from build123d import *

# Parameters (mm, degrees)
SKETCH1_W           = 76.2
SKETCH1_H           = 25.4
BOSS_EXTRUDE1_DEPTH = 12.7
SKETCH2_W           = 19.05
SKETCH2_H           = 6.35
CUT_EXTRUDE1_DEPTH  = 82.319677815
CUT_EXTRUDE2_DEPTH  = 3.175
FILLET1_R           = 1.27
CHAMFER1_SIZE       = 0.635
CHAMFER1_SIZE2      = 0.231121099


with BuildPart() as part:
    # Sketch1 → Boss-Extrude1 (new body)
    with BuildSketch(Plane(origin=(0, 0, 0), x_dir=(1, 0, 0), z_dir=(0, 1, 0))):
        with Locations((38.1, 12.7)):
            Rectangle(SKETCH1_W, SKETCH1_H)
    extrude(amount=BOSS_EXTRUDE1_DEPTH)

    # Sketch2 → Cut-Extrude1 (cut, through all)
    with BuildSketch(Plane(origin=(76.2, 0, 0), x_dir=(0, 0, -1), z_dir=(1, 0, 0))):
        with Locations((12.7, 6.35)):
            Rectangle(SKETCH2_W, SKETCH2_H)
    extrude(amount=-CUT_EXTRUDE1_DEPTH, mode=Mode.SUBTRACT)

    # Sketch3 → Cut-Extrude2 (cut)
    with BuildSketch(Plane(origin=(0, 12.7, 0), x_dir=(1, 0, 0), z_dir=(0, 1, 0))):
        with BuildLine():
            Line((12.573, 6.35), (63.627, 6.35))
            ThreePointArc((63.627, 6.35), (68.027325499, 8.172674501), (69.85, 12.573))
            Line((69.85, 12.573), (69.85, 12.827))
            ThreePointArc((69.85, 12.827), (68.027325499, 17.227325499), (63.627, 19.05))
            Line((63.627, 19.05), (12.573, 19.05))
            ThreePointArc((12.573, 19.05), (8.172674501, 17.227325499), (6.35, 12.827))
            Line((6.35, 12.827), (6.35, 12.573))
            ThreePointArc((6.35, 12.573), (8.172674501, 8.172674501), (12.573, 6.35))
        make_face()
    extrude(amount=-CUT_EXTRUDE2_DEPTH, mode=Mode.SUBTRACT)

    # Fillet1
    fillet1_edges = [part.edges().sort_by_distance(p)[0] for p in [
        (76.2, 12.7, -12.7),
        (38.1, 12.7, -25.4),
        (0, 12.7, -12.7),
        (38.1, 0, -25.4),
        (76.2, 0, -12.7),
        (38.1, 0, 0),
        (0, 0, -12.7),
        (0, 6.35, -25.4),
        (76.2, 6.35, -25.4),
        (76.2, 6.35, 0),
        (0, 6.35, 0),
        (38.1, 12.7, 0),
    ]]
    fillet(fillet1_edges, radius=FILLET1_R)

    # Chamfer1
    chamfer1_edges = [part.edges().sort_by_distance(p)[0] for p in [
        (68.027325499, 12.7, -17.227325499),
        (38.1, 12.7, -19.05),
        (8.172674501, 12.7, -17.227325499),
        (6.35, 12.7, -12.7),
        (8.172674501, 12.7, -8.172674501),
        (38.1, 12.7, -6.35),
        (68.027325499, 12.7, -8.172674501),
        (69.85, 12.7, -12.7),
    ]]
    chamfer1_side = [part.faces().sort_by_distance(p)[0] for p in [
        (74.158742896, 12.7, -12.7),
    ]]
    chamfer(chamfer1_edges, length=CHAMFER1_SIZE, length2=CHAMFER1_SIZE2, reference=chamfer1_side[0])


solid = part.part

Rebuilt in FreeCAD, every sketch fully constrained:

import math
import FreeCAD as App
import Part
import Sketcher
from FreeCAD import Vector
Q = App.Units.Quantity


def edges_at(feature, points):
    """Names of the edges that pass closest to the given points."""
    edges = feature.Shape.Edges
    near = lambda p: min(range(len(edges)), key=lambda i: edges[i].distToShape(Part.Vertex(*p))[0])
    return sorted({f"Edge{near(p) + 1}" for p in points})


def add_polygon(sketch, points):
    """Adds a closed chain of lines whose ends are joined by coincident constraints."""
    first, n = sketch.GeometryCount, len(points)
    for a, b in zip(points, points[1:] + points[:1]):
        sketch.addGeometry(Part.LineSegment(App.Vector(*a, 0), App.Vector(*b, 0)), False)
    for i in range(n):
        sketch.addConstraint(Sketcher.Constraint("Coincident", first + i, 2, first + (i + 1) % n, 1))

doc = App.newDocument("Part")
body = doc.addObject("PartDesign::Body", "Body")

sketch1 = body.newObject("Sketcher::SketchObject", "Sketch")
sketch1.AttachmentSupport = (doc.getObject("XZ_Plane"), [""])
sketch1.MapMode = "FlatFace"
add_polygon(sketch1, [(0, -25), (0, 0), (76, 0), (76, -25)])
sketch1.addConstraint([
    Sketcher.Constraint("Vertical", 0),
    Sketcher.Constraint("Horizontal", 1),
    Sketcher.Constraint("Vertical", 2),
    Sketcher.Constraint("Horizontal", 3),
    Sketcher.Constraint("Coincident", 0, 2, -1, 1),
    Sketcher.Constraint("DistanceX", 1, 1, 1, 2, Q("3 in")),
    Sketcher.Constraint("DistanceY", 0, 1, 0, 2, Q("1 in")),
])
pad1 = body.newObject("PartDesign::Pad", "Pad")
pad1.Profile = sketch1
pad1.Length = Q("0.5 in")
pad1.Reversed = True

sketch2 = body.newObject("Sketcher::SketchObject", "Sketch001")
sketch2.AttachmentSupport = (doc.getObject("YZ_Plane"), [""])
sketch2.MapMode = "FlatFace"
sketch2.AttachmentOffset = App.Placement(Vector(0, 0, 3 * 25.4), App.Rotation())
add_polygon(sketch2, [(10, -3), (3, -3), (3, -22), (10, -22)])
sketch2.addConstraint([
    Sketcher.Constraint("Horizontal", 0),
    Sketcher.Constraint("Vertical", 1),
    Sketcher.Constraint("Horizontal", 2),
    Sketcher.Constraint("Vertical", 3),
    Sketcher.Constraint("DistanceX", 0, 2, 0, 1, Q("0.25 in")),
    Sketcher.Constraint("DistanceY", 1, 2, 1, 1, Q("0.75 in")),
    Sketcher.Constraint("DistanceX", -1, 1, 0, 2, Q("0.125 in")),
    Sketcher.Constraint("DistanceY", 0, 2, -1, 1, Q("0.125 in")),
])
pocket1 = body.newObject("PartDesign::Pocket", "Pocket")
pocket1.Profile = sketch2
pocket1.Type = "ThroughAll"

sketch3 = body.newObject("Sketcher::SketchObject", "Sketch002")
sketch3.AttachmentSupport = (doc.getObject("XZ_Plane"), [""])
sketch3.MapMode = "FlatFace"
sketch3.AttachmentOffset = App.Placement(Vector(0, 0, -0.5 * 25.4), App.Rotation())
sketch3.addGeometry([
    Part.LineSegment(Vector(12.57, -6.35, 0), Vector(63.63, -6.35, 0)),
    Part.ArcOfCircle(Part.Circle(Vector(63.63, -12.57, 0), Vector(0, 0, 1), 6.22), math.radians(0), math.radians(90)),
    Part.LineSegment(Vector(69.85, -12.57, 0), Vector(69.85, -12.83, 0)),
    Part.ArcOfCircle(Part.Circle(Vector(63.63, -12.83, 0), Vector(0, 0, 1), 6.22), math.radians(-90), math.radians(0)),
    Part.LineSegment(Vector(63.63, -19.05, 0), Vector(12.57, -19.05, 0)),
    Part.ArcOfCircle(Part.Circle(Vector(12.57, -12.83, 0), Vector(0, 0, 1), 6.22), math.radians(-180), math.radians(-90)),
    Part.LineSegment(Vector(6.35, -12.83, 0), Vector(6.35, -12.57, 0)),
    Part.ArcOfCircle(Part.Circle(Vector(12.57, -12.57, 0), Vector(0, 0, 1), 6.22), math.radians(90), math.radians(180)),
], False)
sketch3.addConstraint([
    Sketcher.Constraint("Tangent", 0, 2, 1, 2),
    Sketcher.Constraint("Tangent", 1, 1, 2, 1),
    Sketcher.Constraint("Tangent", 2, 2, 3, 2),
    Sketcher.Constraint("Tangent", 3, 1, 4, 1),
    Sketcher.Constraint("Tangent", 4, 2, 5, 2),
    Sketcher.Constraint("Tangent", 5, 1, 6, 1),
    Sketcher.Constraint("Tangent", 6, 2, 7, 2),
    Sketcher.Constraint("Tangent", 7, 1, 0, 1),
    Sketcher.Constraint("Horizontal", 0),
    Sketcher.Constraint("Vertical", 2),
    Sketcher.Constraint("Horizontal", 4),
    Sketcher.Constraint("Vertical", 6),
    Sketcher.Constraint("Equal", 1, 3),
    Sketcher.Constraint("Equal", 3, 5),
    Sketcher.Constraint("Equal", 5, 7),
    Sketcher.Constraint("Radius", 1, Q("0.245 in")),
    Sketcher.Constraint("DistanceX", 0, 1, 0, 2, Q("2.01 in")),
    Sketcher.Constraint("DistanceY", 2, 2, 2, 1, Q("0.01 in")),
    Sketcher.Constraint("DistanceY", 0, 2, -1, 1, Q("0.25 in")),
    Sketcher.Constraint("DistanceX", -1, 1, 1, 1, Q("2.75 in")),
])
pocket2 = body.newObject("PartDesign::Pocket", "Pocket001")
pocket2.Profile = sketch3
pocket2.Length = Q("0.125 in")
pocket2.Reversed = True
doc.recompute()

fillet = body.newObject("PartDesign::Fillet", "Fillet")
fillet.Base = (pocket2, edges_at(pocket2, [
    (76.2, 12.7, -12.7),
    (38.1, 12.7, -25.4),
    (0, 12.7, -12.7),
    (38.1, 0, -25.4),
    (76.2, 0, -12.7),
    (38.1, 0, 0),
    (0, 0, -12.7),
    (0, 6.35, -25.4),
    (76.2, 6.35, -25.4),
    (76.2, 6.35, 0),
    (0, 6.35, 0),
    (38.1, 12.7, 0),
]))
fillet.Radius = Q("0.05 in")
doc.recompute()

chamfer = body.newObject("PartDesign::Chamfer", "Chamfer")
chamfer.Base = (fillet, edges_at(fillet, [
    (68.027, 12.7, -17.227),
    (38.1, 12.7, -19.05),
    (8.173, 12.7, -17.227),
    (6.35, 12.7, -12.7),
    (8.173, 12.7, -8.173),
    (38.1, 12.7, -6.35),
    (68.027, 12.7, -8.173),
    (69.85, 12.7, -12.7),
]))
chamfer.ChamferType = "Two distances"
chamfer.Size = Q("0.025 in")
chamfer.Size2 = 0.231121

doc.recompute()
